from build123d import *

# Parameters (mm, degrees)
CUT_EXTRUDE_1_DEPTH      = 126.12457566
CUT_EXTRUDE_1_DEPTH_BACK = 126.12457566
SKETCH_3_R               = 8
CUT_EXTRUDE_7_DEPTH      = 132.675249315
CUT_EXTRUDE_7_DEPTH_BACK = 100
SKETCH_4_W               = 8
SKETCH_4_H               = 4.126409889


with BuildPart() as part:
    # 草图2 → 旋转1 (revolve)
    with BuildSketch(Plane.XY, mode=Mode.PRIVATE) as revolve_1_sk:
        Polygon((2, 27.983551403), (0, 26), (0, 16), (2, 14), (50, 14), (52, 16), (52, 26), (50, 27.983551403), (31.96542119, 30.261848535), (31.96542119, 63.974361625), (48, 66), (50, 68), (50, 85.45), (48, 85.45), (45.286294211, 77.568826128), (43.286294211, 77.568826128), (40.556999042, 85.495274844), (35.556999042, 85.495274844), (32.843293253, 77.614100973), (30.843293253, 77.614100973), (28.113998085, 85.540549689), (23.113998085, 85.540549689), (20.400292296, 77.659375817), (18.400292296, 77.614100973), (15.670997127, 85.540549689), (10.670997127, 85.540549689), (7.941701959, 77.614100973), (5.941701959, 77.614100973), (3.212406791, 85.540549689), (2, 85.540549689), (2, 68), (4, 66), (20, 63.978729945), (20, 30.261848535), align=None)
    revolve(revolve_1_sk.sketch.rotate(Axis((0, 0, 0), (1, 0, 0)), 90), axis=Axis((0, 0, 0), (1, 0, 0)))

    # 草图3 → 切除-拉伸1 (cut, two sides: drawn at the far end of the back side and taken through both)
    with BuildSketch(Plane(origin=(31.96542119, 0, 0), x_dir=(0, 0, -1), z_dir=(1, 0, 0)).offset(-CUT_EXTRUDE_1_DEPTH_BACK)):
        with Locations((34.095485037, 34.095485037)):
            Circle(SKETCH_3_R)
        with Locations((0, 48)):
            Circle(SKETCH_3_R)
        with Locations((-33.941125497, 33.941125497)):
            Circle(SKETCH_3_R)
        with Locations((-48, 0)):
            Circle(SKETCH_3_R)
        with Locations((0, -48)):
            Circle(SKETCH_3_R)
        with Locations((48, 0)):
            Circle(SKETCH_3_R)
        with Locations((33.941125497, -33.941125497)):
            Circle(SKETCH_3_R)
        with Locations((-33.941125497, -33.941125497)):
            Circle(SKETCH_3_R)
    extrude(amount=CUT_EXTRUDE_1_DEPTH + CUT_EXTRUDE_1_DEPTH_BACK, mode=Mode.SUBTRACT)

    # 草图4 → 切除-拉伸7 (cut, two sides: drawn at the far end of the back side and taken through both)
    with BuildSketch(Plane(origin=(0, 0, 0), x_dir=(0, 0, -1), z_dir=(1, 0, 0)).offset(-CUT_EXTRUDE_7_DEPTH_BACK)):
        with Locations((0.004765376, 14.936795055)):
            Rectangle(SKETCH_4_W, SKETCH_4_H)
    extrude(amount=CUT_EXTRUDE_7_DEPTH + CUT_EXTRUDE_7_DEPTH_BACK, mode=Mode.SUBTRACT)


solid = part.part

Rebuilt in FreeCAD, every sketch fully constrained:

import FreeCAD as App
import Part
import Sketcher

V = App.Vector
Q = App.Units.Quantity


def add_polygon(sketch, points):
    """Adds a closed chain of lines whose ends are joined by coincident constraints."""
    first, n = sketch.GeometryCount, len(points)
    for a, b in zip(points, points[1:] + points[:1]):
        sketch.addGeometry(Part.LineSegment(App.Vector(*a, 0), App.Vector(*b, 0)), False)
    for i in range(n):
        sketch.addConstraint(Sketcher.Constraint("Coincident", first + i, 2, first + (i + 1) % n, 1))

doc = App.newDocument("Part")
body = doc.addObject("PartDesign::Body", "Body")

sketch1 = doc.addObject("Sketcher::SketchObject", "Sketch")
body.addObject(sketch1)
sketch1.AttachmentSupport = (doc.XY_Plane, [""])
sketch1.MapMode = "FlatFace"
add_polygon(sketch1, [(2, 28), (0, 26), (0, 16), (2, 14), (50, 14), (52, 16), (52, 26), (50, 28), (32, 30.3), (32, 64), (48, 66), (50, 68), (50, 85.5), (48, 85.5), (45.3, 77.6), (43.3, 77.6), (40.6, 85.5), (35.6, 85.5), (32.8, 77.6), (30.8, 77.6), (28.1, 85.5), (23.1, 85.5), (20.4, 77.7), (18.4, 77.6), (15.7, 85.5), (10.7, 85.5), (7.9, 77.6), (5.9, 77.6), (3.2, 85.5), (2, 85.5), (2, 68), (4, 66), (20, 64), (20, 30.3)])
sketch1.addConstraint([
    Sketcher.Constraint("Vertical", 1),
    Sketcher.Constraint("Horizontal", 3),
    Sketcher.Constraint("Vertical", 5),
    Sketcher.Constraint("Vertical", 8),
    Sketcher.Constraint("Vertical", 11),
    Sketcher.Constraint("Horizontal", 12),
    Sketcher.Constraint("Horizontal", 14),
    Sketcher.Constraint("Horizontal", 16),
    Sketcher.Constraint("Horizontal", 18),
    Sketcher.Constraint("Horizontal", 20),
    Sketcher.Constraint("Horizontal", 24),
    Sketcher.Constraint("Horizontal", 26),
    Sketcher.Constraint("Horizontal", 28),
    Sketcher.Constraint("Vertical", 29),
    Sketcher.Constraint("Vertical", 32),
    Sketcher.Constraint("PointOnObject", 0, 2, -2),
    Sketcher.Constraint("Perpendicular", 2, 4),
    Sketcher.Constraint("Parallel", 4, 10),
    Sketcher.Constraint("Parallel", 13, 17),
    Sketcher.Constraint("Parallel", 15, 19),
    Sketcher.Constraint("Parallel", 17, 21),
    Sketcher.Constraint("Parallel", 19, 23),
    Sketcher.Constraint("Parallel", 21, 25),
    Sketcher.Constraint("Parallel", 23, 27),
    Sketcher.Constraint("Perpendicular", 10, 30),
    Sketcher.Constraint("Parallel", 7, 31),
    Sketcher.Constraint("Horizontal", 1, 2, 4, 2),
    Sketcher.Constraint("Horizontal", 0, 2, 5, 2),
    Sketcher.Constraint("Horizontal", 18, 2, 22, 2),
    Sketcher.Constraint("Horizontal", 20, 2, 23, 2),
    Sketcher.Constraint("Horizontal", 22, 2, 25, 2),
    Sketcher.Constraint("Horizontal", 24, 2, 27, 2),
    Sketcher.Constraint("Horizontal", 10, 2, 29, 2),
    Sketcher.Constraint("Horizontal", 9, 2, 30, 2),
    Sketcher.Constraint("Horizontal", 7, 2, 32, 2),
    Sketcher.Constraint("Horizontal", 6, 2, 33, 2),
    Sketcher.Constraint("Vertical", 3, 2, 6, 2),
    Sketcher.Constraint("Vertical", 6, 2, 10, 2),
    Sketcher.Constraint("Vertical", 9, 2, 12, 2),
    Sketcher.Constraint("Vertical", 2, 2, 28, 2),
    Sketcher.Constraint("Vertical", 29, 2, 33, 2),
    Sketcher.Constraint("Equal", 12, 14),
    Sketcher.Constraint("Equal", 14, 18),
    Sketcher.Constraint("Equal", 16, 20),
    Sketcher.Constraint("Equal", 20, 24),
    Sketcher.Constraint("Equal", 18, 26),
    Sketcher.Constraint("Equal", 2, 4),
    Sketcher.Constraint("Equal", 4, 10),
    Sketcher.Constraint("Equal", 13, 17),
    Sketcher.Constraint("Equal", 15, 19),
    Sketcher.Constraint("Equal", 17, 21),
    Sketcher.Constraint("Equal", 23, 25),
    Sketcher.Constraint("DistanceX", 3, 1, 3, 2, 48.0),
    Sketcher.Constraint("DistanceX", 12, 2, 12, 1, 2.0),
    Sketcher.Constraint("DistanceX", 16, 2, 16, 1, 5.0),
    Sketcher.Constraint("DistanceY", 1, 2, 1, 1, 10.0),
    Sketcher.Constraint("Angle", 13, Q("-109 deg")),
    Sketcher.Constraint("DistanceY", -1, 1, 0, 2, 26.0),
    Sketcher.Constraint("DistanceY", -1, 1, 9, 2, 66.0),
    Sketcher.Constraint("DistanceX", -1, 1, 31, 2, 20.0),
    Sketcher.Constraint("Angle", 7, Q("172.8 deg")),
    Sketcher.Constraint("Angle", 9, Q("7.2 deg")),
    Sketcher.Constraint("DistanceX", 22, 2, 21, 2, 2.0),
    Sketcher.Constraint("DistanceY", 11, 1, 11, 2, 17.45),
    Sketcher.Constraint("DistanceX", -1, 1, 15, 2, 40.556999),
    Sketcher.Constraint("DistanceY", 29, 2, 29, 1, 17.54055),
    Sketcher.Constraint("DistanceY", 32, 2, 32, 1, 33.716881),
    Sketcher.Constraint("Distance", 0, 2.81682),
])
revolution = doc.addObject("PartDesign::Revolution", "Revolution")
body.addObject(revolution)
revolution.Profile = sketch1
revolution.ReferenceAxis = (sketch1, ["H_Axis"])
revolution.Angle = 360

sketch2 = doc.addObject("Sketcher::SketchObject", "Sketch001")
body.addObject(sketch2)
sketch2.AttachmentSupport = (doc.YZ_Plane, [""])
sketch2.MapMode = "FlatFace"
sketch2.AttachmentOffset = App.Placement(V(0, 0, 31.965421), App.Rotation())
sketch2.addGeometry([
    Part.Circle(V(34, -34, 0), V(0, 0, 1), 8),
    Part.Circle(V(48, 0, 0), V(0, 0, 1), 8),
    Part.Circle(V(34, 34, 0), V(0, 0, 1), 8),
    Part.Circle(V(0, 48, 0), V(0, 0, 1), 8),
    Part.Circle(V(-48, 0, 0), V(0, 0, 1), 8),
    Part.Circle(V(0, -48, 0), V(0, 0, 1), 8),
    Part.Circle(V(-34, -34, 0), V(0, 0, 1), 8),
    Part.Circle(V(-34, 34, 0), V(0, 0, 1), 8),
], False)
sketch2.addConstraint([
    Sketcher.Constraint("Equal", 0, 1),
    Sketcher.Constraint("Equal", 1, 2),
    Sketcher.Constraint("Equal", 2, 3),
    Sketcher.Constraint("Equal", 3, 4),
    Sketcher.Constraint("Equal", 4, 5),
    Sketcher.Constraint("Equal", 5, 6),
    Sketcher.Constraint("Equal", 6, 7),
    Sketcher.Constraint("Symmetric", 1, 3, 4, 3, -1, 1),
    Sketcher.Constraint("Symmetric", 3, 3, 5, 3, -1, 1),
    Sketcher.Constraint("Symmetric", 2, 3, 6, 3, -1, 1),
    Sketcher.Constraint("Symmetric", 2, 3, 7, 3, -2),
    Sketcher.Constraint("PointOnObject", 1, 3, -1),
    Sketcher.Constraint("PointOnObject", 3, 3, -2),
    Sketcher.Constraint("Diameter", 0, 16.0),
    Sketcher.Constraint("DistanceX", -1, 1, 1, 3, 48.0),
    Sketcher.Constraint("DistanceY", -1, 1, 3, 3, 48.0),
    Sketcher.Constraint("DistanceX", 2, 3, 0, 3, 0.15436),
    Sketcher.Constraint("DistanceY", 0, 3, 2, 3, 68.036611),
    Sketcher.Constraint("DistanceX", 6, 3, 0, 3, 68.036611),
    Sketcher.Constraint("DistanceY", 0, 3, 6, 3, 0.15436),
])
pocket1 = doc.addObject("PartDesign::Pocket", "Pocket")
body.addObject(pocket1)
pocket1.Profile = sketch2
pocket1.Type = "ThroughAll"
pocket1.Midplane = True

sketch3 = doc.addObject("Sketcher::SketchObject", "Sketch002")
body.addObject(sketch3)
sketch3.AttachmentSupport = (doc.YZ_Plane, [""])
sketch3.MapMode = "FlatFace"
add_polygon(sketch3, [(17, 4), (12.9, 4), (12.9, -4), (17, -4)])
sketch3.addConstraint([
    Sketcher.Constraint("Horizontal", 0),
    Sketcher.Constraint("Vertical", 1),
    Sketcher.Constraint("Horizontal", 2),
    Sketcher.Constraint("Vertical", 3),
    Sketcher.Constraint("DistanceY", 1, 2, 1, 1, 8.0),
    Sketcher.Constraint("DistanceX", -1, 1, 2, 2, 17.0),
    Sketcher.Constraint("DistanceX", 0, 2, 0, 1, 4.12641),
    Sketcher.Constraint("DistanceY", -1, 1, 0, 2, 3.995235),
])
pocket2 = doc.addObject("PartDesign::Pocket", "Pocket001")
body.addObject(pocket2)
pocket2.Profile = sketch3
pocket2.Type = "ThroughAll"
pocket2.Midplane = True

doc.recompute()
